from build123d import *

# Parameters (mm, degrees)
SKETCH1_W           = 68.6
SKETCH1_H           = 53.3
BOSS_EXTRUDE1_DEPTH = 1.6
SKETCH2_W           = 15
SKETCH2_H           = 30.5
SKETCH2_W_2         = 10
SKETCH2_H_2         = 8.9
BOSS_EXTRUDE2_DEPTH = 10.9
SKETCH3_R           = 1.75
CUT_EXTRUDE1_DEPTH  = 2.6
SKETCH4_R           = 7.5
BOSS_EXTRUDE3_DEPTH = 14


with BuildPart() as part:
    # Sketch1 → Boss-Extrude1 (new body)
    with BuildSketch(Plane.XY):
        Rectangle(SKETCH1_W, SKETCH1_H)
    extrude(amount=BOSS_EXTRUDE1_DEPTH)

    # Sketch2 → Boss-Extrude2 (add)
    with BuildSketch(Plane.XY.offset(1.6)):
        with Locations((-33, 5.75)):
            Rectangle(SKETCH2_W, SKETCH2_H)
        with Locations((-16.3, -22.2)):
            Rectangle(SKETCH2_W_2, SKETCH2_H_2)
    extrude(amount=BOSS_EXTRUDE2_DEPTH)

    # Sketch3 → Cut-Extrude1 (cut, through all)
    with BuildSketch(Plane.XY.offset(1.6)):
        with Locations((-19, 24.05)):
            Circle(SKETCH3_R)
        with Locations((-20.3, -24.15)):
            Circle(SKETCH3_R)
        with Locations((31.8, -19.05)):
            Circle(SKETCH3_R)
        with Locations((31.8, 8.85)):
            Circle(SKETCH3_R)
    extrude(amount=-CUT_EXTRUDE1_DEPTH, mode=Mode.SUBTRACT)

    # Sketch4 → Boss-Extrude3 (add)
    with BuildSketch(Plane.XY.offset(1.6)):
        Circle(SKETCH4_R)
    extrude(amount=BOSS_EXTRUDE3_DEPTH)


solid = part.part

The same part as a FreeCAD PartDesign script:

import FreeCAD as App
import Part
import Sketcher
from FreeCAD import Vector


def add_polygon(sketch, points):
    """Adds a closed chain of lines whose ends are joined by coincident constraints."""
    first, n = sketch.GeometryCount, len(points)
    for a, b in zip(points, points[1:] + points[:1]):
        sketch.addGeometry(Part.LineSegment(App.Vector(*a, 0), App.Vector(*b, 0)), False)
    for i in range(n):
        sketch.addConstraint(Sketcher.Constraint("Coincident", first + i, 2, first + (i + 1) % n, 1))

doc = App.newDocument("Part")
params = doc.addObject("Spreadsheet::Sheet", "Params")
for row, (alias, value) in enumerate([
    ("sketch1_width", "68.6 mm"),
    ("sketch1_height", "53.3 mm"),
    ("pad1_length", "1.6 mm"),
    ("sketch2_width", "15 mm"),
    ("sketch2_width2", "10 mm"),
    ("sketch2_height", "30.5 mm"),
    ("sketch2_height2", "8.9 mm"),
    ("pad2_length", "10.9 mm"),
    ("sketch3_diameter", "3.5 mm"),
    ("sketch4_diameter", "15 mm"),
    ("pad3_length", "14 mm"),
], start=1):
    params.set(f"A{row}", alias)
    params.set(f"B{row}", "=" + value)
    params.setAlias(f"B{row}", alias)

body = doc.addObject("PartDesign::Body", "Body")

sketch1 = doc.addObject("Sketcher::SketchObject", "Sketch")
body.addObject(sketch1)
sketch1.AttachmentSupport = (doc.XY_Plane, [""])
sketch1.MapMode = "FlatFace"
add_polygon(sketch1, [(-34.3, 26.65), (-34.3, -26.65), (34.3, -26.65), (34.3, 26.65)])
sketch1.addConstraint(Sketcher.Constraint("Vertical", 0))
sketch1.addConstraint(Sketcher.Constraint("Horizontal", 1))
sketch1.addConstraint(Sketcher.Constraint("Vertical", 2))
sketch1.addConstraint(Sketcher.Constraint("Horizontal", 3))
sketch1.addConstraint(Sketcher.Constraint("Symmetric", 0, 2, 2, 2, -1, 1))
sketch1.addConstraint(Sketcher.Constraint("DistanceX", 1, 1, 1, 2, 68.6))
sketch1.addConstraint(Sketcher.Constraint("DistanceY", 0, 2, 0, 1, 53.3))
sketch1.setExpression("Constraints[9]", "Params.sketch1_width")
sketch1.setExpression("Constraints[10]", "Params.sketch1_height")
pad1 = doc.addObject("PartDesign::Pad", "Pad")
body.addObject(pad1)
pad1.Profile = sketch1
pad1.setExpression("Length", "Params.pad1_length")

sketch2 = doc.addObject("Sketcher::SketchObject", "Sketch001")
body.addObject(sketch2)
sketch2.AttachmentSupport = (doc.XY_Plane, [""])
sketch2.MapMode = "FlatFace"
sketch2.AttachmentOffset = App.Placement(Vector(0, 0, 1.6), App.Rotation())
add_polygon(sketch2, [(-40.5, 21), (-40.5, -9.5), (-25.5, -9.5), (-25.5, 21)])
add_polygon(sketch2, [(-21.3, -17.75), (-21.3, -26.65), (-11.3, -26.65), (-11.3, -17.75)])
sketch2.addConstraint(Sketcher.Constraint("Vertical", 0))
sketch2.addConstraint(Sketcher.Constraint("Horizontal", 1))
sketch2.addConstraint(Sketcher.Constraint("Vertical", 2))
sketch2.addConstraint(Sketcher.Constraint("Horizontal", 3))
sketch2.addConstraint(Sketcher.Constraint("Vertical", 4))
sketch2.addConstraint(Sketcher.Constraint("Horizontal", 5))
sketch2.addConstraint(Sketcher.Constraint("Vertical", 6))
sketch2.addConstraint(Sketcher.Constraint("Horizontal", 7))
sketch2.addConstraint(Sketcher.Constraint("DistanceX", 1, 1, 1, 2, 15.0))
sketch2.addConstraint(Sketcher.Constraint("DistanceX", 5, 1, 5, 2, 10.0))
sketch2.addConstraint(Sketcher.Constraint("DistanceY", 0, 2, 0, 1, 30.5))
sketch2.addConstraint(Sketcher.Constraint("DistanceY", 4, 2, 4, 1, 8.9))
sketch2.addConstraint(Sketcher.Constraint("DistanceY", -1, 1, 2, 2, 21.0))
sketch2.addConstraint(Sketcher.Constraint("DistanceX", 0, 2, -1, 1, 40.5))
sketch2.addConstraint(Sketcher.Constraint("DistanceX", 4, 2, -1, 1, 21.3))
sketch2.addConstraint(Sketcher.Constraint("DistanceY", 4, 2, -1, 1, 26.65))
sketch2.setExpression("Constraints[16]", "Params.sketch2_width")
sketch2.setExpression("Constraints[17]", "Params.sketch2_width2")
sketch2.setExpression("Constraints[18]", "Params.sketch2_height")
sketch2.setExpression("Constraints[19]", "Params.sketch2_height2")
pad2 = doc.addObject("PartDesign::Pad", "Pad001")
body.addObject(pad2)
pad2.Profile = sketch2
pad2.setExpression("Length", "Params.pad2_length")

sketch3 = doc.addObject("Sketcher::SketchObject", "Sketch002")
body.addObject(sketch3)
sketch3.AttachmentSupport = (doc.XY_Plane, [""])
sketch3.MapMode = "FlatFace"
sketch3.AttachmentOffset = App.Placement(Vector(0, 0, 1.6), App.Rotation())
sketch3.addGeometry(Part.Circle(Vector(-19, 24.05, 0), Vector(0, 0, 1), 1.75), False)
sketch3.addGeometry(Part.Circle(Vector(-20.3, -24.15, 0), Vector(0, 0, 1), 1.75), False)
sketch3.addGeometry(Part.Circle(Vector(31.8, -19.05, 0), Vector(0, 0, 1), 1.75), False)
sketch3.addGeometry(Part.Circle(Vector(31.8, 8.85, 0), Vector(0, 0, 1), 1.75), False)
sketch3.addConstraint(Sketcher.Constraint("Equal", 0, 1))
sketch3.addConstraint(Sketcher.Constraint("Equal", 1, 2))
sketch3.addConstraint(Sketcher.Constraint("Equal", 2, 3))
sketch3.addConstraint(Sketcher.Constraint("Vertical", 2, 3, 3, 3))
sketch3.addConstraint(Sketcher.Constraint("Diameter", 0, 3.5))
sketch3.addConstraint(Sketcher.Constraint("DistanceX", 0, 3, -1, 1, 19.0))
sketch3.addConstraint(Sketcher.Constraint("DistanceY", 1, 3, 3, 3, 33.0))
sketch3.addConstraint(Sketcher.Constraint("DistanceX", 1, 3, -1, 1, 20.3))
sketch3.addConstraint(Sketcher.Constraint("DistanceX", -1, 1, 2, 3, 31.8))
sketch3.addConstraint(Sketcher.Constraint("DistanceY", 1, 3, 0, 3, 48.2))
sketch3.addConstraint(Sketcher.Constraint("DistanceY", 1, 3, 2, 3, 5.1))
sketch3.addConstraint(Sketcher.Constraint("DistanceY", -1, 1, 0, 3, 24.05))
sketch3.setExpression("Constraints[4]", "Params.sketch3_diameter")
pocket1 = doc.addObject("PartDesign::Pocket", "Pocket")
body.addObject(pocket1)
pocket1.Profile = sketch3
pocket1.Type = "ThroughAll"

sketch4 = doc.addObject("Sketcher::SketchObject", "Sketch003")
body.addObject(sketch4)
sketch4.AttachmentSupport = (doc.XY_Plane, [""])
sketch4.MapMode = "FlatFace"
sketch4.AttachmentOffset = App.Placement(Vector(0, 0, 1.6), App.Rotation())
sketch4.addGeometry(Part.Circle(Vector(0, 0, 0), Vector(0, 0, 1), 7.5), False)
sketch4.addConstraint(Sketcher.Constraint("Coincident", 0, 3, -1, 1))
sketch4.addConstraint(Sketcher.Constraint("Diameter", 0, 15.0))
sketch4.setExpression("Constraints[1]", "Params.sketch4_diameter")
pad3 = doc.addObject("PartDesign::Pad", "Pad002")
body.addObject(pad3)
pad3.Profile = sketch4
pad3.setExpression("Length", "Params.pad3_length")

doc.recompute()
